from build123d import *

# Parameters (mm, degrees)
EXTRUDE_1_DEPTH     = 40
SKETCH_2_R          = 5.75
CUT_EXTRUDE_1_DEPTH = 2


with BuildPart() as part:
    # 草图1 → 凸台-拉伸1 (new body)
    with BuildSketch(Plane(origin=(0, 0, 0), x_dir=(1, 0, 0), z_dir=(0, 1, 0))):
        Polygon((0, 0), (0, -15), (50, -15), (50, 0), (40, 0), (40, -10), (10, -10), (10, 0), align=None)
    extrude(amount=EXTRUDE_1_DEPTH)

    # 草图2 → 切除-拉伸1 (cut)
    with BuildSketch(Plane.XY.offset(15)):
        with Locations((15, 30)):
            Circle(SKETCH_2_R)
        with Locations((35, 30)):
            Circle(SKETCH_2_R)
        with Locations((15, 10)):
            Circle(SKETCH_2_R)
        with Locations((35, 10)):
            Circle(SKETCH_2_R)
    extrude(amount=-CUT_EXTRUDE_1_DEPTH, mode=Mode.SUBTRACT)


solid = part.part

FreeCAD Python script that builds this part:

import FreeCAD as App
import Part
import Sketcher

V = App.Vector

doc = App.newDocument("Part")
body = doc.addObject("PartDesign::Body", "Body")

# Sketch on XZ plane
sketch1 = body.newObject("Sketcher::SketchObject", "Sketch")
sketch1.AttachmentSupport = (doc.getObject("XZ_Plane"), [""])
sketch1.MapMode = "FlatFace"
sketch1.addGeometry(Part.LineSegment(V(0, 0, 0), V(0, 15, 0)), False)
sketch1.addGeometry(Part.LineSegment(V(0, 15, 0), V(50, 15, 0)), False)
sketch1.addGeometry(Part.LineSegment(V(50, 15, 0), V(50, 0, 0)), False)
sketch1.addGeometry(Part.LineSegment(V(50, 0, 0), V(40, 0, 0)), False)
sketch1.addGeometry(Part.LineSegment(V(40, 0, 0), V(40, 10, 0)), False)
sketch1.addGeometry(Part.LineSegment(V(40, 10, 0), V(10, 10, 0)), False)
sketch1.addGeometry(Part.LineSegment(V(10, 10, 0), V(10, 0, 0)), False)
sketch1.addGeometry(Part.LineSegment(V(10, 0, 0), V(0, 0, 0)), False)
sketch1.addConstraint(Sketcher.Constraint("Coincident", 0, 2, 1, 1))
sketch1.addConstraint(Sketcher.Constraint("Coincident", 1, 2, 2, 1))
sketch1.addConstraint(Sketcher.Constraint("Coincident", 2, 2, 3, 1))
sketch1.addConstraint(Sketcher.Constraint("Coincident", 3, 2, 4, 1))
sketch1.addConstraint(Sketcher.Constraint("Coincident", 4, 2, 5, 1))
sketch1.addConstraint(Sketcher.Constraint("Coincident", 5, 2, 6, 1))
sketch1.addConstraint(Sketcher.Constraint("Coincident", 6, 2, 7, 1))
sketch1.addConstraint(Sketcher.Constraint("Coincident", 7, 2, 0, 1))
sketch1.addConstraint(Sketcher.Constraint("Vertical", 0))
sketch1.addConstraint(Sketcher.Constraint("Horizontal", 1))
sketch1.addConstraint(Sketcher.Constraint("Vertical", 2))
sketch1.addConstraint(Sketcher.Constraint("Horizontal", 3))
sketch1.addConstraint(Sketcher.Constraint("Vertical", 4))
sketch1.addConstraint(Sketcher.Constraint("Horizontal", 5))
sketch1.addConstraint(Sketcher.Constraint("Vertical", 6))
sketch1.addConstraint(Sketcher.Constraint("Horizontal", 7))
sketch1.addConstraint(Sketcher.Constraint("Coincident", 7, 2, -1, 1))
sketch1.addConstraint(Sketcher.Constraint("PointOnObject", 2, 2, -1))
sketch1.addConstraint(Sketcher.Constraint("Equal", 3, 7))
sketch1.addConstraint(Sketcher.Constraint("Equal", 7, 4))
sketch1.addConstraint(Sketcher.Constraint("DistanceX", 1, 1, 1, 2, 50.0))
sketch1.addConstraint(Sketcher.Constraint("DistanceX", 3, 2, 3, 1, 10.0))
sketch1.addConstraint(Sketcher.Constraint("DistanceY", 0, 1, 0, 2, 15.0))
pad1 = body.newObject("PartDesign::Pad", "Pad")
pad1.Profile = sketch1
pad1.Length = 40
pad1.Reversed = True

# Sketch on XY plane
sketch2 = body.newObject("Sketcher::SketchObject", "Sketch001")
sketch2.AttachmentSupport = (doc.getObject("XY_Plane"), [""])
sketch2.MapMode = "FlatFace"
sketch2.AttachmentOffset = App.Placement(V(0, 0, 15), App.Rotation())
sketch2.addGeometry(Part.Circle(V(15, 30, 0), V(0, 0, 1), 6), False)
sketch2.addGeometry(Part.Circle(V(35, 30, 0), V(0, 0, 1), 6), False)
sketch2.addGeometry(Part.Circle(V(15, 10, 0), V(0, 0, 1), 6), False)
sketch2.addGeometry(Part.Circle(V(35, 10, 0), V(0, 0, 1), 6), False)
sketch2.addConstraint(Sketcher.Constraint("Equal", 0, 1))
sketch2.addConstraint(Sketcher.Constraint("Equal", 1, 2))
sketch2.addConstraint(Sketcher.Constraint("Equal", 2, 3))
sketch2.addConstraint(Sketcher.Constraint("Horizontal", 0, 3, 1, 3))
sketch2.addConstraint(Sketcher.Constraint("Horizontal", 2, 3, 3, 3))
sketch2.addConstraint(Sketcher.Constraint("Vertical", 0, 3, 2, 3))
sketch2.addConstraint(Sketcher.Constraint("Vertical", 1, 3, 3, 3))
sketch2.addConstraint(Sketcher.Constraint("Diameter", 0, 11.5))
sketch2.addConstraint(Sketcher.Constraint("DistanceX", -1, 1, 0, 3, 15.0))
sketch2.addConstraint(Sketcher.Constraint("DistanceY", -1, 1, 0, 3, 30.0))
sketch2.addConstraint(Sketcher.Constraint("DistanceX", -1, 1, 1, 3, 35.0))
sketch2.addConstraint(Sketcher.Constraint("DistanceY", -1, 1, 2, 3, 10.0))
pocket1 = body.newObject("PartDesign::Pocket", "Pocket")
pocket1.Profile = sketch2
pocket1.Length = 2

doc.recompute()
